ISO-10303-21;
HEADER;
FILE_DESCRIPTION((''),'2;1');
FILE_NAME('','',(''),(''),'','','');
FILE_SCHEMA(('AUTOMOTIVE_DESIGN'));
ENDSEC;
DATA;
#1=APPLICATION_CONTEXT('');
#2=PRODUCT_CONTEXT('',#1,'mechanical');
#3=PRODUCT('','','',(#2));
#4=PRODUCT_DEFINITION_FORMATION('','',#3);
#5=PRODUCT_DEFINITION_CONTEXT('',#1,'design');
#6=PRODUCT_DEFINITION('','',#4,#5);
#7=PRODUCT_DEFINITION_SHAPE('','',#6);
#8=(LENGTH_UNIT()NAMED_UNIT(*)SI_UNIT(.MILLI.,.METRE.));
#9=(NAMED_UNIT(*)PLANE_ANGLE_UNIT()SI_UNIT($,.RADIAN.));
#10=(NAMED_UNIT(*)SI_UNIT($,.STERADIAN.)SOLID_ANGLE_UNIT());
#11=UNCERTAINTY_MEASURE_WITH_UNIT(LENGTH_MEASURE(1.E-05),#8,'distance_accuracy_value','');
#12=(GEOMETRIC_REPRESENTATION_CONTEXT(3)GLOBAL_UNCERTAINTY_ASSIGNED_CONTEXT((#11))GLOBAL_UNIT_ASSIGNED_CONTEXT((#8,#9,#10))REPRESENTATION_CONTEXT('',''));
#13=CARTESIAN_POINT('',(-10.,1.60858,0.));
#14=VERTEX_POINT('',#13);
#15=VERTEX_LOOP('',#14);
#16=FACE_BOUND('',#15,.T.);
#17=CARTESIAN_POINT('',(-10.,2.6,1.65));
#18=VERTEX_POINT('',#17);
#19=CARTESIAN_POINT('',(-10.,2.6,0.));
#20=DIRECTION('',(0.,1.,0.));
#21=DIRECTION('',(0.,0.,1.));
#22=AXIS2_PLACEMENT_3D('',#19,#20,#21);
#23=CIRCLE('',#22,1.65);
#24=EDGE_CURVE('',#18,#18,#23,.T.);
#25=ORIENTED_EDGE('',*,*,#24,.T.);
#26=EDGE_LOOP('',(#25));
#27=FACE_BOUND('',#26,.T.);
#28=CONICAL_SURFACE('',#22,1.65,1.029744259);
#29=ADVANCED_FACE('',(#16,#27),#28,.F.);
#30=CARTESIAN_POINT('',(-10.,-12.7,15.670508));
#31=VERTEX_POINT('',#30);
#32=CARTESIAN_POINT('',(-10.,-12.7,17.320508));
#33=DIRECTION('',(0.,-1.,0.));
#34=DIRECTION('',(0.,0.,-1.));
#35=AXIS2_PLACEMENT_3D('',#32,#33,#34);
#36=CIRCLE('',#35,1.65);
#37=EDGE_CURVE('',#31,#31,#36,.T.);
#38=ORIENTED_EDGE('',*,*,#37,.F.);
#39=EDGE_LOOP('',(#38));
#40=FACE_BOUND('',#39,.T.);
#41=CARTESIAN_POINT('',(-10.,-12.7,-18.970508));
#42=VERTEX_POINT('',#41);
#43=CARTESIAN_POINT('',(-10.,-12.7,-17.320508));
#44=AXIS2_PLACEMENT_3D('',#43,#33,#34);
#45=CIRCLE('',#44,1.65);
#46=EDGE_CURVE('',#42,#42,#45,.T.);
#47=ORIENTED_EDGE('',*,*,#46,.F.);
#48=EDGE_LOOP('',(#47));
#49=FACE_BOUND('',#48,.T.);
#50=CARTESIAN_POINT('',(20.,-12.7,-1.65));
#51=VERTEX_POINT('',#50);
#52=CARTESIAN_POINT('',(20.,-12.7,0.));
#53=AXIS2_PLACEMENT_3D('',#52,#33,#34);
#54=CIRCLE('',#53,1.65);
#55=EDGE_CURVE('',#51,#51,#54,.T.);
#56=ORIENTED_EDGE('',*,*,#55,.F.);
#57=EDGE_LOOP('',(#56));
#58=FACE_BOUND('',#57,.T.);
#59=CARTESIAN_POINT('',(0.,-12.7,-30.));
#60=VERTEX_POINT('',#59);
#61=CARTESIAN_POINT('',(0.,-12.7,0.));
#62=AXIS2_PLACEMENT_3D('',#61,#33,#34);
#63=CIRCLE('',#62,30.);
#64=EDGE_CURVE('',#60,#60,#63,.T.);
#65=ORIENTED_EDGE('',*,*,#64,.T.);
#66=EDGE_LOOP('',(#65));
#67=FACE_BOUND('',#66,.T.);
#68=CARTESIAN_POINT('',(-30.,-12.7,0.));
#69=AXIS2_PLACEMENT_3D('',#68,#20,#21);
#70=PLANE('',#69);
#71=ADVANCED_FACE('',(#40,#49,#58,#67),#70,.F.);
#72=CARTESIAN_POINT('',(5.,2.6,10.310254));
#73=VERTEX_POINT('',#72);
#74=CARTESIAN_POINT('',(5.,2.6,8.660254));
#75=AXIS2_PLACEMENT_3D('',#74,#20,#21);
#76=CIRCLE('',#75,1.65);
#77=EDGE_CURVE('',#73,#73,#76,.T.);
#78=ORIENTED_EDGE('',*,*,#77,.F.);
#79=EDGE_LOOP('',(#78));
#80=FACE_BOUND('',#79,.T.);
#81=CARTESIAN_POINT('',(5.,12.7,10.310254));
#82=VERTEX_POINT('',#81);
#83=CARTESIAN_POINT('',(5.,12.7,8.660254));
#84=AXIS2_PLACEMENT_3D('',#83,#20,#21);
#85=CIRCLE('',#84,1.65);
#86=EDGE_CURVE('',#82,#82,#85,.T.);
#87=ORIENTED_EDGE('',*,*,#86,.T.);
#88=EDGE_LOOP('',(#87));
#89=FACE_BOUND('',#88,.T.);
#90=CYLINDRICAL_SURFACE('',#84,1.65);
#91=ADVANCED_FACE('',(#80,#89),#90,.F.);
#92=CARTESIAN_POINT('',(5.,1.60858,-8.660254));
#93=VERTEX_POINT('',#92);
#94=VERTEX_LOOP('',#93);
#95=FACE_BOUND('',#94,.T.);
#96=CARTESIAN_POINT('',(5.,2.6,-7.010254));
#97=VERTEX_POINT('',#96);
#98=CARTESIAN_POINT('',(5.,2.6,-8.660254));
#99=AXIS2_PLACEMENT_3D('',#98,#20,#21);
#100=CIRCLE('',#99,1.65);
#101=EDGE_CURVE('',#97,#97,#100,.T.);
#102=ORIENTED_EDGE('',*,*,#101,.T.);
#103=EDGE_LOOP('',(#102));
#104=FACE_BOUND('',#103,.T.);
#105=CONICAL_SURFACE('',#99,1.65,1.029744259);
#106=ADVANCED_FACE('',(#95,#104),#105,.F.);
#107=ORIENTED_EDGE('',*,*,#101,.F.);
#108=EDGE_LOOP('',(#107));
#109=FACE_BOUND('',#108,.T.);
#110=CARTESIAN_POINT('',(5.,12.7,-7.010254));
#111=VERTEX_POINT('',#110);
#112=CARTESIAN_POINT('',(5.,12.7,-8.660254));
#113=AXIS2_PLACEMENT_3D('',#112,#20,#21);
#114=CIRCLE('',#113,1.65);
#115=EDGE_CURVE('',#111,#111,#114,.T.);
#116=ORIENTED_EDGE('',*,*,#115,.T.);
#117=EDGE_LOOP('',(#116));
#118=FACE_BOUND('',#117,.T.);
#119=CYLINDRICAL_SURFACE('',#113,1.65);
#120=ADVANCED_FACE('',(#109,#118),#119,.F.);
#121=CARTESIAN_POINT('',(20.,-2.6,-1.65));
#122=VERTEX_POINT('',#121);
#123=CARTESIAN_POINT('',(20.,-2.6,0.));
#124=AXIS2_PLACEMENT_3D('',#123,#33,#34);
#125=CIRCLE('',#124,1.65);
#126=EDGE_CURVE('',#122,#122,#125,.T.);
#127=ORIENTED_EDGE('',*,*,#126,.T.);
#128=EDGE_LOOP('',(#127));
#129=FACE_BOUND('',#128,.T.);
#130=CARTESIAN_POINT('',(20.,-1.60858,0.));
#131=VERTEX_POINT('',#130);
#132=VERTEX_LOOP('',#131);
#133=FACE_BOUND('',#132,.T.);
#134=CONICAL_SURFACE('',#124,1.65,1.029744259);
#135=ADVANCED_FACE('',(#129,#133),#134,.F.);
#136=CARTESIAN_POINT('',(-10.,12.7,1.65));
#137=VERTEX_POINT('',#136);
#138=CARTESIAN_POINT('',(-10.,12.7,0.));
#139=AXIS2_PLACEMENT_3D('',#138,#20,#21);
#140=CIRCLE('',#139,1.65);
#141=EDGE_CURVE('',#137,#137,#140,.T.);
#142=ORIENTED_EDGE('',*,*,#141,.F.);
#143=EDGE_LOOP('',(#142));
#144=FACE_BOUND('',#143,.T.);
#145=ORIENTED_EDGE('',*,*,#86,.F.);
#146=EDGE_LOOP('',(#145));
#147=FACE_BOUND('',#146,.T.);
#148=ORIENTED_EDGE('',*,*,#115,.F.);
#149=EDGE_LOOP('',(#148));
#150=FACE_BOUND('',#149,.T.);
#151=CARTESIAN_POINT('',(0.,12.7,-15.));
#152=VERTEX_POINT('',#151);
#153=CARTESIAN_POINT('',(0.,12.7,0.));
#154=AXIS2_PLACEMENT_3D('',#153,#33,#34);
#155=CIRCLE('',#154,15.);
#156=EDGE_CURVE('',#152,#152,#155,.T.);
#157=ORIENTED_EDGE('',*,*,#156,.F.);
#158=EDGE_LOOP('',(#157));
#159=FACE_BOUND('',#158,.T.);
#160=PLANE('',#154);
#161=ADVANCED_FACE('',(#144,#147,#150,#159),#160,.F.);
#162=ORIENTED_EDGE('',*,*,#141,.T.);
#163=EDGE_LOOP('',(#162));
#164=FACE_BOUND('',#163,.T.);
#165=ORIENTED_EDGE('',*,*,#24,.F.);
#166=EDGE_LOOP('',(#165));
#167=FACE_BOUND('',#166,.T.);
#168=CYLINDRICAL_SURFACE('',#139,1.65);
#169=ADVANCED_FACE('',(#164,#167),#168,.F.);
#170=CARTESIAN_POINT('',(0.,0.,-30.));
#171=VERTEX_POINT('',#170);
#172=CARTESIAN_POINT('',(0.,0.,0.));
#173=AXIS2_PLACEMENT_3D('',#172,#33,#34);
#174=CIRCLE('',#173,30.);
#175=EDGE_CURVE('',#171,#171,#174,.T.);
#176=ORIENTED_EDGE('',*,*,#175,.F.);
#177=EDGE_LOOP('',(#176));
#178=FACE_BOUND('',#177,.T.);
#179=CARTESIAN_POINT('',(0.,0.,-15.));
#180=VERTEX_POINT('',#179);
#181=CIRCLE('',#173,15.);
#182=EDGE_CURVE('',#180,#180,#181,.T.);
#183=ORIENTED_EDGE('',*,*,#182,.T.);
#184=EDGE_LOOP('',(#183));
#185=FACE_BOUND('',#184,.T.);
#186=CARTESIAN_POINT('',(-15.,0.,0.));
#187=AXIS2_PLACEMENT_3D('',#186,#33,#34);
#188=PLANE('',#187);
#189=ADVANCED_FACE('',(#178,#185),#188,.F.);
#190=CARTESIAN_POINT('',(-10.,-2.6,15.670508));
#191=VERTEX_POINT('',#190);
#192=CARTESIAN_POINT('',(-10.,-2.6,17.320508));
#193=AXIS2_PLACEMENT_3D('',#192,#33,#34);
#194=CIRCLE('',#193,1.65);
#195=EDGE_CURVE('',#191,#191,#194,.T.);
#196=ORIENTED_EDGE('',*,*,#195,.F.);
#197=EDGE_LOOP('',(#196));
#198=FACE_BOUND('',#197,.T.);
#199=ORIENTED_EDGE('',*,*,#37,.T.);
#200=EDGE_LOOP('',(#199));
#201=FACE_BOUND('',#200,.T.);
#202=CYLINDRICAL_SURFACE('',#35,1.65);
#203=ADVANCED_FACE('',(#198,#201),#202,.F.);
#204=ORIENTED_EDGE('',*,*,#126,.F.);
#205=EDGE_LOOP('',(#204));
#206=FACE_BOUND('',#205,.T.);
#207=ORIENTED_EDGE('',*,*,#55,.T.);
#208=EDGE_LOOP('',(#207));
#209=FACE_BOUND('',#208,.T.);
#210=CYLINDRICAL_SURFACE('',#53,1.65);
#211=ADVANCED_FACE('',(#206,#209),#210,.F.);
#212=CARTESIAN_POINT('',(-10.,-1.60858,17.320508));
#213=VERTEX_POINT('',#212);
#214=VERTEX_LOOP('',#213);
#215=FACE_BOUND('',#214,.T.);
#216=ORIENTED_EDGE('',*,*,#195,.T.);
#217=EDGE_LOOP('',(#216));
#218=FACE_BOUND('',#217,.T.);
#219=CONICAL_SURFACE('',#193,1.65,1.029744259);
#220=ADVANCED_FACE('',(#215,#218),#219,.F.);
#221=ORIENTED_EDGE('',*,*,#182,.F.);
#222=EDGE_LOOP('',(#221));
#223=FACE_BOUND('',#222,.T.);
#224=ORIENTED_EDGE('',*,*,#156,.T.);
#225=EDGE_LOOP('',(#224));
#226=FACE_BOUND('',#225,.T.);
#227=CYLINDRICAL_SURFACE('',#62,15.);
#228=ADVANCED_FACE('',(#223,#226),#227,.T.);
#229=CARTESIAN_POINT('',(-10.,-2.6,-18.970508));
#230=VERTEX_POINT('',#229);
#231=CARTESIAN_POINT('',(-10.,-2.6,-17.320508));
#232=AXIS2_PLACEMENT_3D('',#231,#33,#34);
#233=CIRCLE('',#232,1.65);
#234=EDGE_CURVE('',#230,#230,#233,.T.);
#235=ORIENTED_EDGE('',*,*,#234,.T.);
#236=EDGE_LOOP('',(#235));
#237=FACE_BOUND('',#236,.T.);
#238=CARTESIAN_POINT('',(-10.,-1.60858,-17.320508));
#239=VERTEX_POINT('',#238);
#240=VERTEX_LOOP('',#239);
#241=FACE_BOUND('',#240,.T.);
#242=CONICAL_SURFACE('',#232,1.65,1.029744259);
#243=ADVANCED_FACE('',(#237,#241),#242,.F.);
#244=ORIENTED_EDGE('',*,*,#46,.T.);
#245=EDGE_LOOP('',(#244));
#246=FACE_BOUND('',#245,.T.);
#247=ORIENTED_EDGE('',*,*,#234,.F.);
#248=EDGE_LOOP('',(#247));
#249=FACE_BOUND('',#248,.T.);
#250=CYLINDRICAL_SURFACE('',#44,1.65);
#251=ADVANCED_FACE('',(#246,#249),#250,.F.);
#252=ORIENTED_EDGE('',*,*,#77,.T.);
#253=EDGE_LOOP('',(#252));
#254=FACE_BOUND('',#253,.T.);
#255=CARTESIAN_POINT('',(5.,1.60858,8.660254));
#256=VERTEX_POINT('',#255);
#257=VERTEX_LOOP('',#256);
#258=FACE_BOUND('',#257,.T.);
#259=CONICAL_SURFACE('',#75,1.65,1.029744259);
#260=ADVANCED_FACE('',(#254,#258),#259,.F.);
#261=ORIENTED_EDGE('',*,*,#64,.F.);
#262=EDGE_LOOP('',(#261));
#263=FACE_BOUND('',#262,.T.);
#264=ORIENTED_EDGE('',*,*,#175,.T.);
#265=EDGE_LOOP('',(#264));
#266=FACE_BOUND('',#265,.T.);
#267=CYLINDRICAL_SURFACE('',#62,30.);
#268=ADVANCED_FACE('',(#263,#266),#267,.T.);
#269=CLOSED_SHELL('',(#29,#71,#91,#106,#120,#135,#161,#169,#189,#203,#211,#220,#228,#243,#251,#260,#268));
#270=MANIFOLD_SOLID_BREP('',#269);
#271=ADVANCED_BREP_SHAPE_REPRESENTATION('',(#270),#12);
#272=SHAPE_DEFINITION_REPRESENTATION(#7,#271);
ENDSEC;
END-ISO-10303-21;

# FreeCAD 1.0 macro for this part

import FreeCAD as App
import Part
import Sketcher


def add_polygon(sketch, points):
    """Adds a closed chain of lines whose ends are joined by coincident constraints."""
    first, n = sketch.GeometryCount, len(points)
    for a, b in zip(points, points[1:] + points[:1]):
        sketch.addGeometry(Part.LineSegment(App.Vector(*a, 0), App.Vector(*b, 0)), False)
    for i in range(n):
        sketch.addConstraint(Sketcher.Constraint("Coincident", first + i, 2, first + (i + 1) % n, 1))

doc = App.newDocument("Part")
body = doc.addObject("PartDesign::Body", "Body")

# Sketch on XY plane
sketch1 = doc.addObject("Sketcher::SketchObject", "Sketch")
body.addObject(sketch1)
sketch1.AttachmentSupport = (doc.XY_Plane, [""])
sketch1.MapMode = "FlatFace"
add_polygon(sketch1, [(0, 13), (-15, 13), (-15, 0), (-30, 0), (-30, -13), (0, -13)])  # lines 0-5
sketch1.addConstraint([
    Sketcher.Constraint("Horizontal", 0),
    Sketcher.Constraint("Vertical", 1),
    Sketcher.Constraint("Horizontal", 2),
    Sketcher.Constraint("Vertical", 3),
    Sketcher.Constraint("Horizontal", 4),
    Sketcher.Constraint("Vertical", 5),
    Sketcher.Constraint("Symmetric", 4, 2, 5, 2, -1, 1),
    Sketcher.Constraint("PointOnObject", 1, 2, -1),
    Sketcher.Constraint("Equal", 0, 2),
    Sketcher.Constraint("DistanceX", 0, 2, 0, 1, 15.0),
    Sketcher.Constraint("DistanceY", 1, 2, 1, 1, 12.7),
])
revolution = doc.addObject("PartDesign::Revolution", "Revolution")
body.addObject(revolution)
revolution.Profile = sketch1
revolution.ReferenceAxis = (sketch1, ["V_Axis"])
revolution.Angle = 360

# Sketch on XZ plane
sketch2 = doc.addObject("Sketcher::SketchObject", "Sketch001")
body.addObject(sketch2)
sketch2.AttachmentSupport = (doc.XZ_Plane, [""])
sketch2.MapMode = "FlatFace"
sketch2.AttachmentOffset = App.Placement(App.Vector(0, 0, -12.7), App.Rotation())
sketch2.addGeometry([
    Part.Circle(App.Vector(-10, 0, 0), App.Vector(0, 0, 1), 1.6),
    Part.Circle(App.Vector(5, -8.7, 0), App.Vector(0, 0, 1), 1.6),
    Part.Circle(App.Vector(5, 8.7, 0), App.Vector(0, 0, 1), 1.6),
], False)
sketch2.addConstraint([
    Sketcher.Constraint("Equal", 0, 1),
    Sketcher.Constraint("Equal", 1, 2),
    Sketcher.Constraint("Symmetric", 1, 3, 2, 3, -1),
    Sketcher.Constraint("PointOnObject", 0, 3, -1),
    Sketcher.Constraint("Diameter", 0, 3.3),
    Sketcher.Constraint("DistanceX", 0, 3, -1, 1, 10.0),
    Sketcher.Constraint("DistanceX", -1, 1, 1, 3, 5.0),
    Sketcher.Constraint("DistanceY", 1, 3, 2, 3, 17.320508),
])
doc.recompute()
hole = doc.addObject("PartDesign::Hole", "Hole")
body.addObject(hole)
hole.Profile = sketch2
hole.ThreadType = "None"
hole.Diameter = 3.3
hole.DepthType = "Dimension"
hole.Depth = 10.1
hole.DrillPoint = "Angled"
hole.DrillPointAngle = 118
hole.Reversed = True

# Sketch on XZ plane
sketch3 = doc.addObject("Sketcher::SketchObject", "Sketch002")
body.addObject(sketch3)
sketch3.AttachmentSupport = (doc.XZ_Plane, [""])
sketch3.MapMode = "FlatFace"
sketch3.AttachmentOffset = App.Placement(App.Vector(0, 0, 12.7), App.Rotation())
sketch3.addGeometry([
    Part.Circle(App.Vector(20, 0, 0), App.Vector(0, 0, 1), 1.6),
    Part.Circle(App.Vector(-10, 17.3, 0), App.Vector(0, 0, 1), 1.6),
    Part.Circle(App.Vector(-10, -17.3, 0), App.Vector(0, 0, 1), 1.6),
], False)
sketch3.addConstraint([
    Sketcher.Constraint("Equal", 0, 1),
    Sketcher.Constraint("Equal", 1, 2),
    Sketcher.Constraint("Symmetric", 1, 3, 2, 3, -1),
    Sketcher.Constraint("PointOnObject", 0, 3, -1),
    Sketcher.Constraint("Diameter", 0, 3.3),
    Sketcher.Constraint("DistanceX", -1, 1, 0, 3, 20.0),
    Sketcher.Constraint("DistanceX", 1, 3, -1, 1, 10.0),
    Sketcher.Constraint("DistanceY", -1, 1, 1, 3, 17.320508),
])
doc.recompute()
hole2 = doc.addObject("PartDesign::Hole", "Hole001")
body.addObject(hole2)
hole2.Profile = sketch3
hole2.ThreadType = "None"
hole2.Diameter = 3.3
hole2.DepthType = "Dimension"
hole2.Depth = 10.1
hole2.DrillPoint = "Angled"
hole2.DrillPointAngle = 118

doc.recompute()
